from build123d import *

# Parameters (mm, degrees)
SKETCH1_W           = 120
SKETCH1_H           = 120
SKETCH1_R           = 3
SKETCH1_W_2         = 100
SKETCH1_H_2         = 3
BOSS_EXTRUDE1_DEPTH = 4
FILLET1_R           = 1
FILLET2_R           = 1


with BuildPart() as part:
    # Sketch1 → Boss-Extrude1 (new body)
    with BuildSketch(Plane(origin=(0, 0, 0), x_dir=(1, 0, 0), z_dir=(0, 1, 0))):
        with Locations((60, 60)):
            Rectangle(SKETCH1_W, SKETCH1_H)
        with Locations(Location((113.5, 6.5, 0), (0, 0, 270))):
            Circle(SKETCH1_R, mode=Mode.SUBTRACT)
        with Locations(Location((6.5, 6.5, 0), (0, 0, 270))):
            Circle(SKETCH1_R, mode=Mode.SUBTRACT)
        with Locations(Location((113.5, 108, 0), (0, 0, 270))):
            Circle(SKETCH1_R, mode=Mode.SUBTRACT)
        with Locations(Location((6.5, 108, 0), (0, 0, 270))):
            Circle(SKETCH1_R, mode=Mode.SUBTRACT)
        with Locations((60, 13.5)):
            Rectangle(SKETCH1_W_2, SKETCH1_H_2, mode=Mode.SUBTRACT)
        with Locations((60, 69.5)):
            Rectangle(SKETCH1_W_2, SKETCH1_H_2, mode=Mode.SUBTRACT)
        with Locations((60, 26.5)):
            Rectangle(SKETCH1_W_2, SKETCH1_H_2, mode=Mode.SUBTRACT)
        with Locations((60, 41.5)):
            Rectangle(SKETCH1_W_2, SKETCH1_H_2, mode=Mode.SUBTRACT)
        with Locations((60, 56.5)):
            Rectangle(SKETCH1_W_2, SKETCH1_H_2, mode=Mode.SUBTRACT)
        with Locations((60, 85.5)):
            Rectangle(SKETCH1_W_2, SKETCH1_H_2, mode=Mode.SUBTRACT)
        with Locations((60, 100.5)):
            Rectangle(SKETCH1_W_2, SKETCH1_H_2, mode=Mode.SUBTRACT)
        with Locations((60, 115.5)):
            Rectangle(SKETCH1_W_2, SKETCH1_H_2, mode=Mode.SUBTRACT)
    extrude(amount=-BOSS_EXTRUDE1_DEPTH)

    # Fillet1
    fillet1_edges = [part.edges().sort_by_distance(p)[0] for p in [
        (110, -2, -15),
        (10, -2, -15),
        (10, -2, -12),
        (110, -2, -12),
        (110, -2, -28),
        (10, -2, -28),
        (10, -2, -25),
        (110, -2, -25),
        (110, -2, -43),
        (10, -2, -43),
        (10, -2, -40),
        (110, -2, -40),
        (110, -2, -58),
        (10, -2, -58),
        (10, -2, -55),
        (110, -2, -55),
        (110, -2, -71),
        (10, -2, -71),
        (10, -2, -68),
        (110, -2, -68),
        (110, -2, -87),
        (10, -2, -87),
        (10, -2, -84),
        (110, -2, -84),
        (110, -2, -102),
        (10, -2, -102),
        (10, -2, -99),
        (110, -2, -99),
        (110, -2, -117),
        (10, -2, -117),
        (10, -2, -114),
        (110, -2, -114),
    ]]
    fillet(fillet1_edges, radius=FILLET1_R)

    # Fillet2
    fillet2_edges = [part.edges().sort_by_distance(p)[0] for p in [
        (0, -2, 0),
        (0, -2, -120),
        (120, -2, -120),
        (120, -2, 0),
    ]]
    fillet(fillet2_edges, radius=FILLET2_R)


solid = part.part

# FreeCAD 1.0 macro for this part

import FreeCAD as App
import Part
import Sketcher
from FreeCAD import Vector


def edges_at(feature, points):
    """Names of the edges that pass closest to the given points."""
    edges = feature.Shape.Edges
    near = lambda p: min(range(len(edges)), key=lambda i: edges[i].distToShape(Part.Vertex(*p))[0])
    return sorted({f"Edge{near(p) + 1}" for p in points})

doc = App.newDocument("Part")
body = doc.addObject("PartDesign::Body", "Body")

sketch1 = body.newObject("Sketcher::SketchObject", "Sketch")
sketch1.AttachmentSupport = (doc.getObject("XZ_Plane"), [""])
sketch1.MapMode = "FlatFace"
sketch1.addGeometry(Part.LineSegment(Vector(0, -120, 0), Vector(0, 0, 0)), False)
sketch1.addGeometry(Part.LineSegment(Vector(0, 0, 0), Vector(120, 0, 0)), False)
sketch1.addGeometry(Part.LineSegment(Vector(120, 0, 0), Vector(120, -120, 0)), False)
sketch1.addGeometry(Part.LineSegment(Vector(120, -120, 0), Vector(0, -120, 0)), False)
sketch1.addGeometry(Part.Circle(Vector(6.5, -6.5, 0), Vector(0, 0, 1), 3), False)
sketch1.addGeometry(Part.LineSegment(Vector(110, -12, 0), Vector(10, -12, 0)), False)
sketch1.addGeometry(Part.LineSegment(Vector(10, -12, 0), Vector(10, -15, 0)), False)
sketch1.addGeometry(Part.LineSegment(Vector(10, -15, 0), Vector(110, -15, 0)), False)
sketch1.addGeometry(Part.LineSegment(Vector(110, -15, 0), Vector(110, -12, 0)), False)
sketch1.addGeometry(Part.LineSegment(Vector(110, -25, 0), Vector(10, -25, 0)), False)
sketch1.addGeometry(Part.LineSegment(Vector(10, -25, 0), Vector(10, -28, 0)), False)
sketch1.addGeometry(Part.LineSegment(Vector(10, -28, 0), Vector(110, -28, 0)), False)
sketch1.addGeometry(Part.LineSegment(Vector(110, -28, 0), Vector(110, -25, 0)), False)
sketch1.addGeometry(Part.Circle(Vector(113.5, -6.5, 0), Vector(0, 0, 1), 3), False)
sketch1.addGeometry(Part.LineSegment(Vector(110, -40, 0), Vector(10, -40, 0)), False)
sketch1.addGeometry(Part.LineSegment(Vector(10, -40, 0), Vector(10, -43, 0)), False)
sketch1.addGeometry(Part.LineSegment(Vector(10, -43, 0), Vector(110, -43, 0)), False)
sketch1.addGeometry(Part.LineSegment(Vector(110, -43, 0), Vector(110, -40, 0)), False)
sketch1.addGeometry(Part.LineSegment(Vector(110, -55, 0), Vector(10, -55, 0)), False)
sketch1.addGeometry(Part.LineSegment(Vector(10, -55, 0), Vector(10, -58, 0)), False)
sketch1.addGeometry(Part.LineSegment(Vector(10, -58, 0), Vector(110, -58, 0)), False)
sketch1.addGeometry(Part.LineSegment(Vector(110, -58, 0), Vector(110, -55, 0)), False)
sketch1.addGeometry(Part.Circle(Vector(6.5, -108, 0), Vector(0, 0, 1), 3), False)
sketch1.addGeometry(Part.LineSegment(Vector(110, -68, 0), Vector(10, -68, 0)), False)
sketch1.addGeometry(Part.LineSegment(Vector(10, -68, 0), Vector(10, -71, 0)), False)
sketch1.addGeometry(Part.LineSegment(Vector(10, -71, 0), Vector(110, -71, 0)), False)
sketch1.addGeometry(Part.LineSegment(Vector(110, -71, 0), Vector(110, -68, 0)), False)
sketch1.addGeometry(Part.LineSegment(Vector(110, -84, 0), Vector(10, -84, 0)), False)
sketch1.addGeometry(Part.LineSegment(Vector(10, -84, 0), Vector(10, -87, 0)), False)
sketch1.addGeometry(Part.LineSegment(Vector(10, -87, 0), Vector(110, -87, 0)), False)
sketch1.addGeometry(Part.LineSegment(Vector(110, -87, 0), Vector(110, -84, 0)), False)
sketch1.addGeometry(Part.LineSegment(Vector(110, -99, 0), Vector(10, -99, 0)), False)
sketch1.addGeometry(Part.LineSegment(Vector(10, -99, 0), Vector(10, -102, 0)), False)
sketch1.addGeometry(Part.LineSegment(Vector(10, -102, 0), Vector(110, -102, 0)), False)
sketch1.addGeometry(Part.LineSegment(Vector(110, -102, 0), Vector(110, -99, 0)), False)
sketch1.addGeometry(Part.LineSegment(Vector(110, -114, 0), Vector(10, -114, 0)), False)
sketch1.addGeometry(Part.LineSegment(Vector(10, -114, 0), Vector(10, -117, 0)), False)
sketch1.addGeometry(Part.LineSegment(Vector(10, -117, 0), Vector(110, -117, 0)), False)
sketch1.addGeometry(Part.LineSegment(Vector(110, -117, 0), Vector(110, -114, 0)), False)
sketch1.addGeometry(Part.Circle(Vector(113.5, -108, 0), Vector(0, 0, 1), 3), False)
sketch1.addConstraint(Sketcher.Constraint("Coincident", 0, 2, 1, 1))
sketch1.addConstraint(Sketcher.Constraint("Coincident", 1, 2, 2, 1))
sketch1.addConstraint(Sketcher.Constraint("Coincident", 2, 2, 3, 1))
sketch1.addConstraint(Sketcher.Constraint("Coincident", 3, 2, 0, 1))
sketch1.addConstraint(Sketcher.Constraint("Coincident", 5, 2, 6, 1))
sketch1.addConstraint(Sketcher.Constraint("Coincident", 6, 2, 7, 1))
sketch1.addConstraint(Sketcher.Constraint("Coincident", 7, 2, 8, 1))
sketch1.addConstraint(Sketcher.Constraint("Coincident", 8, 2, 5, 1))
sketch1.addConstraint(Sketcher.Constraint("Coincident", 9, 2, 10, 1))
sketch1.addConstraint(Sketcher.Constraint("Coincident", 10, 2, 11, 1))
sketch1.addConstraint(Sketcher.Constraint("Coincident", 11, 2, 12, 1))
sketch1.addConstraint(Sketcher.Constraint("Coincident", 12, 2, 9, 1))
sketch1.addConstraint(Sketcher.Constraint("Coincident", 14, 2, 15, 1))
sketch1.addConstraint(Sketcher.Constraint("Coincident", 15, 2, 16, 1))
sketch1.addConstraint(Sketcher.Constraint("Coincident", 16, 2, 17, 1))
sketch1.addConstraint(Sketcher.Constraint("Coincident", 17, 2, 14, 1))
sketch1.addConstraint(Sketcher.Constraint("Coincident", 18, 2, 19, 1))
sketch1.addConstraint(Sketcher.Constraint("Coincident", 19, 2, 20, 1))
sketch1.addConstraint(Sketcher.Constraint("Coincident", 20, 2, 21, 1))
sketch1.addConstraint(Sketcher.Constraint("Coincident", 21, 2, 18, 1))
sketch1.addConstraint(Sketcher.Constraint("Coincident", 23, 2, 24, 1))
sketch1.addConstraint(Sketcher.Constraint("Coincident", 24, 2, 25, 1))
sketch1.addConstraint(Sketcher.Constraint("Coincident", 25, 2, 26, 1))
sketch1.addConstraint(Sketcher.Constraint("Coincident", 26, 2, 23, 1))
sketch1.addConstraint(Sketcher.Constraint("Coincident", 27, 2, 28, 1))
sketch1.addConstraint(Sketcher.Constraint("Coincident", 28, 2, 29, 1))
sketch1.addConstraint(Sketcher.Constraint("Coincident", 29, 2, 30, 1))
sketch1.addConstraint(Sketcher.Constraint("Coincident", 30, 2, 27, 1))
sketch1.addConstraint(Sketcher.Constraint("Coincident", 31, 2, 32, 1))
sketch1.addConstraint(Sketcher.Constraint("Coincident", 32, 2, 33, 1))
sketch1.addConstraint(Sketcher.Constraint("Coincident", 33, 2, 34, 1))
sketch1.addConstraint(Sketcher.Constraint("Coincident", 34, 2, 31, 1))
sketch1.addConstraint(Sketcher.Constraint("Coincident", 35, 2, 36, 1))
sketch1.addConstraint(Sketcher.Constraint("Coincident", 36, 2, 37, 1))
sketch1.addConstraint(Sketcher.Constraint("Coincident", 37, 2, 38, 1))
sketch1.addConstraint(Sketcher.Constraint("Coincident", 38, 2, 35, 1))
sketch1.addConstraint(Sketcher.Constraint("Vertical", 0))
sketch1.addConstraint(Sketcher.Constraint("Horizontal", 1))
sketch1.addConstraint(Sketcher.Constraint("Vertical", 2))
sketch1.addConstraint(Sketcher.Constraint("Horizontal", 3))
sketch1.addConstraint(Sketcher.Constraint("Horizontal", 5))
sketch1.addConstraint(Sketcher.Constraint("Vertical", 6))
sketch1.addConstraint(Sketcher.Constraint("Horizontal", 7))
sketch1.addConstraint(Sketcher.Constraint("Vertical", 8))
sketch1.addConstraint(Sketcher.Constraint("Horizontal", 9))
sketch1.addConstraint(Sketcher.Constraint("Vertical", 10))
sketch1.addConstraint(Sketcher.Constraint("Horizontal", 11))
sketch1.addConstraint(Sketcher.Constraint("Vertical", 12))
sketch1.addConstraint(Sketcher.Constraint("Horizontal", 14))
sketch1.addConstraint(Sketcher.Constraint("Vertical", 15))
sketch1.addConstraint(Sketcher.Constraint("Horizontal", 16))
sketch1.addConstraint(Sketcher.Constraint("Vertical", 17))
sketch1.addConstraint(Sketcher.Constraint("Horizontal", 18))
sketch1.addConstraint(Sketcher.Constraint("Vertical", 19))
sketch1.addConstraint(Sketcher.Constraint("Horizontal", 20))
sketch1.addConstraint(Sketcher.Constraint("Vertical", 21))
sketch1.addConstraint(Sketcher.Constraint("Horizontal", 23))
sketch1.addConstraint(Sketcher.Constraint("Vertical", 24))
sketch1.addConstraint(Sketcher.Constraint("Horizontal", 25))
sketch1.addConstraint(Sketcher.Constraint("Vertical", 26))
sketch1.addConstraint(Sketcher.Constraint("Horizontal", 27))
sketch1.addConstraint(Sketcher.Constraint("Vertical", 28))
sketch1.addConstraint(Sketcher.Constraint("Horizontal", 29))
sketch1.addConstraint(Sketcher.Constraint("Vertical", 30))
sketch1.addConstraint(Sketcher.Constraint("Horizontal", 31))
sketch1.addConstraint(Sketcher.Constraint("Vertical", 32))
sketch1.addConstraint(Sketcher.Constraint("Horizontal", 33))
sketch1.addConstraint(Sketcher.Constraint("Vertical", 34))
sketch1.addConstraint(Sketcher.Constraint("Horizontal", 35))
sketch1.addConstraint(Sketcher.Constraint("Vertical", 36))
sketch1.addConstraint(Sketcher.Constraint("Horizontal", 37))
sketch1.addConstraint(Sketcher.Constraint("Vertical", 38))
sketch1.addConstraint(Sketcher.Constraint("Coincident", 0, 2, -1, 1))
sketch1.addConstraint(Sketcher.Constraint("Equal", 4, 13))
sketch1.addConstraint(Sketcher.Constraint("Equal", 13, 22))
sketch1.addConstraint(Sketcher.Constraint("Equal", 22, 39))
sketch1.addConstraint(Sketcher.Constraint("Horizontal", 4, 3, 13, 3))
sketch1.addConstraint(Sketcher.Constraint("Horizontal", 22, 3, 39, 3))
sketch1.addConstraint(Sketcher.Constraint("Vertical", 4, 3, 22, 3))
sketch1.addConstraint(Sketcher.Constraint("Vertical", 13, 3, 39, 3))
sketch1.addConstraint(Sketcher.Constraint("Vertical", 6, 2, 9, 2))
sketch1.addConstraint(Sketcher.Constraint("Vertical", 8, 2, 11, 2))
sketch1.addConstraint(Sketcher.Constraint("Vertical", 10, 2, 14, 2))
sketch1.addConstraint(Sketcher.Constraint("Vertical", 12, 2, 16, 2))
sketch1.addConstraint(Sketcher.Constraint("Vertical", 15, 2, 18, 2))
sketch1.addConstraint(Sketcher.Constraint("Vertical", 17, 2, 20, 2))
sketch1.addConstraint(Sketcher.Constraint("Vertical", 19, 2, 23, 2))
sketch1.addConstraint(Sketcher.Constraint("Vertical", 21, 2, 25, 2))
sketch1.addConstraint(Sketcher.Constraint("Vertical", 24, 2, 27, 2))
sketch1.addConstraint(Sketcher.Constraint("Vertical", 26, 2, 29, 2))
sketch1.addConstraint(Sketcher.Constraint("Vertical", 28, 2, 31, 2))
sketch1.addConstraint(Sketcher.Constraint("Vertical", 30, 2, 33, 2))
sketch1.addConstraint(Sketcher.Constraint("Vertical", 32, 2, 35, 2))
sketch1.addConstraint(Sketcher.Constraint("Vertical", 34, 2, 37, 2))
sketch1.addConstraint(Sketcher.Constraint("Equal", 3, 0))
sketch1.addConstraint(Sketcher.Constraint("Equal", 8, 10))
sketch1.addConstraint(Sketcher.Constraint("Equal", 12, 15))
sketch1.addConstraint(Sketcher.Constraint("Equal", 17, 19))
sketch1.addConstraint(Sketcher.Constraint("Equal", 21, 24))
sketch1.addConstraint(Sketcher.Constraint("Equal", 26, 28))
sketch1.addConstraint(Sketcher.Constraint("Equal", 30, 32))
sketch1.addConstraint(Sketcher.Constraint("Equal", 34, 36))
sketch1.addConstraint(Sketcher.Constraint("Diameter", 4, 6.0))
sketch1.addConstraint(Sketcher.Constraint("DistanceX", 1, 1, 1, 2, 120.0))
sketch1.addConstraint(Sketcher.Constraint("DistanceX", 5, 2, 5, 1, 100.0))
sketch1.addConstraint(Sketcher.Constraint("DistanceY", 6, 2, 6, 1, 3.0))
sketch1.addConstraint(Sketcher.Constraint("DistanceY", 22, 3, -1, 1, 108.0))
sketch1.addConstraint(Sketcher.Constraint("DistanceX", -1, 1, 5, 2, 10.0))
sketch1.addConstraint(Sketcher.Constraint("DistanceY", 5, 2, -1, 1, 12.0))
sketch1.addConstraint(Sketcher.Constraint("DistanceY", 9, 2, -1, 1, 25.0))
sketch1.addConstraint(Sketcher.Constraint("DistanceY", 14, 2, -1, 1, 40.0))
sketch1.addConstraint(Sketcher.Constraint("DistanceY", 18, 2, -1, 1, 55.0))
sketch1.addConstraint(Sketcher.Constraint("DistanceY", 23, 2, -1, 1, 68.0))
sketch1.addConstraint(Sketcher.Constraint("DistanceY", 27, 2, -1, 1, 84.0))
sketch1.addConstraint(Sketcher.Constraint("DistanceY", 31, 2, -1, 1, 99.0))
sketch1.addConstraint(Sketcher.Constraint("DistanceY", 35, 2, -1, 1, 114.0))
sketch1.addConstraint(Sketcher.Constraint("DistanceX", 4, 3, 13, 3, 107.0))
sketch1.addConstraint(Sketcher.Constraint("DistanceX", -1, 1, 4, 3, 6.5))
sketch1.addConstraint(Sketcher.Constraint("DistanceY", 4, 3, -1, 1, 6.5))
pad1 = body.newObject("PartDesign::Pad", "Pad")
pad1.Profile = sketch1
pad1.Length = 4
doc.recompute()

fillet = body.newObject("PartDesign::Fillet", "Fillet")
fillet.Base = (pad1, edges_at(pad1, [
    (110, -2, -15),
    (10, -2, -15),
    (10, -2, -12),
    (110, -2, -12),
    (110, -2, -28),
    (10, -2, -28),
    (10, -2, -25),
    (110, -2, -25),
    (110, -2, -43),
    (10, -2, -43),
    (10, -2, -40),
    (110, -2, -40),
    (110, -2, -58),
    (10, -2, -58),
    (10, -2, -55),
    (110, -2, -55),
    (110, -2, -71),
    (10, -2, -71),
    (10, -2, -68),
    (110, -2, -68),
    (110, -2, -87),
    (10, -2, -87),
    (10, -2, -84),
    (110, -2, -84),
    (110, -2, -102),
    (10, -2, -102),
    (10, -2, -99),
    (110, -2, -99),
    (110, -2, -117),
    (10, -2, -117),
    (10, -2, -114),
    (110, -2, -114),
]))
fillet.Radius = 1
doc.recompute()

fillet2 = body.newObject("PartDesign::Fillet", "Fillet001")
fillet2.Base = (fillet, edges_at(fillet, [
    (0, -2, 0),
    (0, -2, -120),
    (120, -2, -120),
    (120, -2, 0),
]))
fillet2.Radius = 1

doc.recompute()
